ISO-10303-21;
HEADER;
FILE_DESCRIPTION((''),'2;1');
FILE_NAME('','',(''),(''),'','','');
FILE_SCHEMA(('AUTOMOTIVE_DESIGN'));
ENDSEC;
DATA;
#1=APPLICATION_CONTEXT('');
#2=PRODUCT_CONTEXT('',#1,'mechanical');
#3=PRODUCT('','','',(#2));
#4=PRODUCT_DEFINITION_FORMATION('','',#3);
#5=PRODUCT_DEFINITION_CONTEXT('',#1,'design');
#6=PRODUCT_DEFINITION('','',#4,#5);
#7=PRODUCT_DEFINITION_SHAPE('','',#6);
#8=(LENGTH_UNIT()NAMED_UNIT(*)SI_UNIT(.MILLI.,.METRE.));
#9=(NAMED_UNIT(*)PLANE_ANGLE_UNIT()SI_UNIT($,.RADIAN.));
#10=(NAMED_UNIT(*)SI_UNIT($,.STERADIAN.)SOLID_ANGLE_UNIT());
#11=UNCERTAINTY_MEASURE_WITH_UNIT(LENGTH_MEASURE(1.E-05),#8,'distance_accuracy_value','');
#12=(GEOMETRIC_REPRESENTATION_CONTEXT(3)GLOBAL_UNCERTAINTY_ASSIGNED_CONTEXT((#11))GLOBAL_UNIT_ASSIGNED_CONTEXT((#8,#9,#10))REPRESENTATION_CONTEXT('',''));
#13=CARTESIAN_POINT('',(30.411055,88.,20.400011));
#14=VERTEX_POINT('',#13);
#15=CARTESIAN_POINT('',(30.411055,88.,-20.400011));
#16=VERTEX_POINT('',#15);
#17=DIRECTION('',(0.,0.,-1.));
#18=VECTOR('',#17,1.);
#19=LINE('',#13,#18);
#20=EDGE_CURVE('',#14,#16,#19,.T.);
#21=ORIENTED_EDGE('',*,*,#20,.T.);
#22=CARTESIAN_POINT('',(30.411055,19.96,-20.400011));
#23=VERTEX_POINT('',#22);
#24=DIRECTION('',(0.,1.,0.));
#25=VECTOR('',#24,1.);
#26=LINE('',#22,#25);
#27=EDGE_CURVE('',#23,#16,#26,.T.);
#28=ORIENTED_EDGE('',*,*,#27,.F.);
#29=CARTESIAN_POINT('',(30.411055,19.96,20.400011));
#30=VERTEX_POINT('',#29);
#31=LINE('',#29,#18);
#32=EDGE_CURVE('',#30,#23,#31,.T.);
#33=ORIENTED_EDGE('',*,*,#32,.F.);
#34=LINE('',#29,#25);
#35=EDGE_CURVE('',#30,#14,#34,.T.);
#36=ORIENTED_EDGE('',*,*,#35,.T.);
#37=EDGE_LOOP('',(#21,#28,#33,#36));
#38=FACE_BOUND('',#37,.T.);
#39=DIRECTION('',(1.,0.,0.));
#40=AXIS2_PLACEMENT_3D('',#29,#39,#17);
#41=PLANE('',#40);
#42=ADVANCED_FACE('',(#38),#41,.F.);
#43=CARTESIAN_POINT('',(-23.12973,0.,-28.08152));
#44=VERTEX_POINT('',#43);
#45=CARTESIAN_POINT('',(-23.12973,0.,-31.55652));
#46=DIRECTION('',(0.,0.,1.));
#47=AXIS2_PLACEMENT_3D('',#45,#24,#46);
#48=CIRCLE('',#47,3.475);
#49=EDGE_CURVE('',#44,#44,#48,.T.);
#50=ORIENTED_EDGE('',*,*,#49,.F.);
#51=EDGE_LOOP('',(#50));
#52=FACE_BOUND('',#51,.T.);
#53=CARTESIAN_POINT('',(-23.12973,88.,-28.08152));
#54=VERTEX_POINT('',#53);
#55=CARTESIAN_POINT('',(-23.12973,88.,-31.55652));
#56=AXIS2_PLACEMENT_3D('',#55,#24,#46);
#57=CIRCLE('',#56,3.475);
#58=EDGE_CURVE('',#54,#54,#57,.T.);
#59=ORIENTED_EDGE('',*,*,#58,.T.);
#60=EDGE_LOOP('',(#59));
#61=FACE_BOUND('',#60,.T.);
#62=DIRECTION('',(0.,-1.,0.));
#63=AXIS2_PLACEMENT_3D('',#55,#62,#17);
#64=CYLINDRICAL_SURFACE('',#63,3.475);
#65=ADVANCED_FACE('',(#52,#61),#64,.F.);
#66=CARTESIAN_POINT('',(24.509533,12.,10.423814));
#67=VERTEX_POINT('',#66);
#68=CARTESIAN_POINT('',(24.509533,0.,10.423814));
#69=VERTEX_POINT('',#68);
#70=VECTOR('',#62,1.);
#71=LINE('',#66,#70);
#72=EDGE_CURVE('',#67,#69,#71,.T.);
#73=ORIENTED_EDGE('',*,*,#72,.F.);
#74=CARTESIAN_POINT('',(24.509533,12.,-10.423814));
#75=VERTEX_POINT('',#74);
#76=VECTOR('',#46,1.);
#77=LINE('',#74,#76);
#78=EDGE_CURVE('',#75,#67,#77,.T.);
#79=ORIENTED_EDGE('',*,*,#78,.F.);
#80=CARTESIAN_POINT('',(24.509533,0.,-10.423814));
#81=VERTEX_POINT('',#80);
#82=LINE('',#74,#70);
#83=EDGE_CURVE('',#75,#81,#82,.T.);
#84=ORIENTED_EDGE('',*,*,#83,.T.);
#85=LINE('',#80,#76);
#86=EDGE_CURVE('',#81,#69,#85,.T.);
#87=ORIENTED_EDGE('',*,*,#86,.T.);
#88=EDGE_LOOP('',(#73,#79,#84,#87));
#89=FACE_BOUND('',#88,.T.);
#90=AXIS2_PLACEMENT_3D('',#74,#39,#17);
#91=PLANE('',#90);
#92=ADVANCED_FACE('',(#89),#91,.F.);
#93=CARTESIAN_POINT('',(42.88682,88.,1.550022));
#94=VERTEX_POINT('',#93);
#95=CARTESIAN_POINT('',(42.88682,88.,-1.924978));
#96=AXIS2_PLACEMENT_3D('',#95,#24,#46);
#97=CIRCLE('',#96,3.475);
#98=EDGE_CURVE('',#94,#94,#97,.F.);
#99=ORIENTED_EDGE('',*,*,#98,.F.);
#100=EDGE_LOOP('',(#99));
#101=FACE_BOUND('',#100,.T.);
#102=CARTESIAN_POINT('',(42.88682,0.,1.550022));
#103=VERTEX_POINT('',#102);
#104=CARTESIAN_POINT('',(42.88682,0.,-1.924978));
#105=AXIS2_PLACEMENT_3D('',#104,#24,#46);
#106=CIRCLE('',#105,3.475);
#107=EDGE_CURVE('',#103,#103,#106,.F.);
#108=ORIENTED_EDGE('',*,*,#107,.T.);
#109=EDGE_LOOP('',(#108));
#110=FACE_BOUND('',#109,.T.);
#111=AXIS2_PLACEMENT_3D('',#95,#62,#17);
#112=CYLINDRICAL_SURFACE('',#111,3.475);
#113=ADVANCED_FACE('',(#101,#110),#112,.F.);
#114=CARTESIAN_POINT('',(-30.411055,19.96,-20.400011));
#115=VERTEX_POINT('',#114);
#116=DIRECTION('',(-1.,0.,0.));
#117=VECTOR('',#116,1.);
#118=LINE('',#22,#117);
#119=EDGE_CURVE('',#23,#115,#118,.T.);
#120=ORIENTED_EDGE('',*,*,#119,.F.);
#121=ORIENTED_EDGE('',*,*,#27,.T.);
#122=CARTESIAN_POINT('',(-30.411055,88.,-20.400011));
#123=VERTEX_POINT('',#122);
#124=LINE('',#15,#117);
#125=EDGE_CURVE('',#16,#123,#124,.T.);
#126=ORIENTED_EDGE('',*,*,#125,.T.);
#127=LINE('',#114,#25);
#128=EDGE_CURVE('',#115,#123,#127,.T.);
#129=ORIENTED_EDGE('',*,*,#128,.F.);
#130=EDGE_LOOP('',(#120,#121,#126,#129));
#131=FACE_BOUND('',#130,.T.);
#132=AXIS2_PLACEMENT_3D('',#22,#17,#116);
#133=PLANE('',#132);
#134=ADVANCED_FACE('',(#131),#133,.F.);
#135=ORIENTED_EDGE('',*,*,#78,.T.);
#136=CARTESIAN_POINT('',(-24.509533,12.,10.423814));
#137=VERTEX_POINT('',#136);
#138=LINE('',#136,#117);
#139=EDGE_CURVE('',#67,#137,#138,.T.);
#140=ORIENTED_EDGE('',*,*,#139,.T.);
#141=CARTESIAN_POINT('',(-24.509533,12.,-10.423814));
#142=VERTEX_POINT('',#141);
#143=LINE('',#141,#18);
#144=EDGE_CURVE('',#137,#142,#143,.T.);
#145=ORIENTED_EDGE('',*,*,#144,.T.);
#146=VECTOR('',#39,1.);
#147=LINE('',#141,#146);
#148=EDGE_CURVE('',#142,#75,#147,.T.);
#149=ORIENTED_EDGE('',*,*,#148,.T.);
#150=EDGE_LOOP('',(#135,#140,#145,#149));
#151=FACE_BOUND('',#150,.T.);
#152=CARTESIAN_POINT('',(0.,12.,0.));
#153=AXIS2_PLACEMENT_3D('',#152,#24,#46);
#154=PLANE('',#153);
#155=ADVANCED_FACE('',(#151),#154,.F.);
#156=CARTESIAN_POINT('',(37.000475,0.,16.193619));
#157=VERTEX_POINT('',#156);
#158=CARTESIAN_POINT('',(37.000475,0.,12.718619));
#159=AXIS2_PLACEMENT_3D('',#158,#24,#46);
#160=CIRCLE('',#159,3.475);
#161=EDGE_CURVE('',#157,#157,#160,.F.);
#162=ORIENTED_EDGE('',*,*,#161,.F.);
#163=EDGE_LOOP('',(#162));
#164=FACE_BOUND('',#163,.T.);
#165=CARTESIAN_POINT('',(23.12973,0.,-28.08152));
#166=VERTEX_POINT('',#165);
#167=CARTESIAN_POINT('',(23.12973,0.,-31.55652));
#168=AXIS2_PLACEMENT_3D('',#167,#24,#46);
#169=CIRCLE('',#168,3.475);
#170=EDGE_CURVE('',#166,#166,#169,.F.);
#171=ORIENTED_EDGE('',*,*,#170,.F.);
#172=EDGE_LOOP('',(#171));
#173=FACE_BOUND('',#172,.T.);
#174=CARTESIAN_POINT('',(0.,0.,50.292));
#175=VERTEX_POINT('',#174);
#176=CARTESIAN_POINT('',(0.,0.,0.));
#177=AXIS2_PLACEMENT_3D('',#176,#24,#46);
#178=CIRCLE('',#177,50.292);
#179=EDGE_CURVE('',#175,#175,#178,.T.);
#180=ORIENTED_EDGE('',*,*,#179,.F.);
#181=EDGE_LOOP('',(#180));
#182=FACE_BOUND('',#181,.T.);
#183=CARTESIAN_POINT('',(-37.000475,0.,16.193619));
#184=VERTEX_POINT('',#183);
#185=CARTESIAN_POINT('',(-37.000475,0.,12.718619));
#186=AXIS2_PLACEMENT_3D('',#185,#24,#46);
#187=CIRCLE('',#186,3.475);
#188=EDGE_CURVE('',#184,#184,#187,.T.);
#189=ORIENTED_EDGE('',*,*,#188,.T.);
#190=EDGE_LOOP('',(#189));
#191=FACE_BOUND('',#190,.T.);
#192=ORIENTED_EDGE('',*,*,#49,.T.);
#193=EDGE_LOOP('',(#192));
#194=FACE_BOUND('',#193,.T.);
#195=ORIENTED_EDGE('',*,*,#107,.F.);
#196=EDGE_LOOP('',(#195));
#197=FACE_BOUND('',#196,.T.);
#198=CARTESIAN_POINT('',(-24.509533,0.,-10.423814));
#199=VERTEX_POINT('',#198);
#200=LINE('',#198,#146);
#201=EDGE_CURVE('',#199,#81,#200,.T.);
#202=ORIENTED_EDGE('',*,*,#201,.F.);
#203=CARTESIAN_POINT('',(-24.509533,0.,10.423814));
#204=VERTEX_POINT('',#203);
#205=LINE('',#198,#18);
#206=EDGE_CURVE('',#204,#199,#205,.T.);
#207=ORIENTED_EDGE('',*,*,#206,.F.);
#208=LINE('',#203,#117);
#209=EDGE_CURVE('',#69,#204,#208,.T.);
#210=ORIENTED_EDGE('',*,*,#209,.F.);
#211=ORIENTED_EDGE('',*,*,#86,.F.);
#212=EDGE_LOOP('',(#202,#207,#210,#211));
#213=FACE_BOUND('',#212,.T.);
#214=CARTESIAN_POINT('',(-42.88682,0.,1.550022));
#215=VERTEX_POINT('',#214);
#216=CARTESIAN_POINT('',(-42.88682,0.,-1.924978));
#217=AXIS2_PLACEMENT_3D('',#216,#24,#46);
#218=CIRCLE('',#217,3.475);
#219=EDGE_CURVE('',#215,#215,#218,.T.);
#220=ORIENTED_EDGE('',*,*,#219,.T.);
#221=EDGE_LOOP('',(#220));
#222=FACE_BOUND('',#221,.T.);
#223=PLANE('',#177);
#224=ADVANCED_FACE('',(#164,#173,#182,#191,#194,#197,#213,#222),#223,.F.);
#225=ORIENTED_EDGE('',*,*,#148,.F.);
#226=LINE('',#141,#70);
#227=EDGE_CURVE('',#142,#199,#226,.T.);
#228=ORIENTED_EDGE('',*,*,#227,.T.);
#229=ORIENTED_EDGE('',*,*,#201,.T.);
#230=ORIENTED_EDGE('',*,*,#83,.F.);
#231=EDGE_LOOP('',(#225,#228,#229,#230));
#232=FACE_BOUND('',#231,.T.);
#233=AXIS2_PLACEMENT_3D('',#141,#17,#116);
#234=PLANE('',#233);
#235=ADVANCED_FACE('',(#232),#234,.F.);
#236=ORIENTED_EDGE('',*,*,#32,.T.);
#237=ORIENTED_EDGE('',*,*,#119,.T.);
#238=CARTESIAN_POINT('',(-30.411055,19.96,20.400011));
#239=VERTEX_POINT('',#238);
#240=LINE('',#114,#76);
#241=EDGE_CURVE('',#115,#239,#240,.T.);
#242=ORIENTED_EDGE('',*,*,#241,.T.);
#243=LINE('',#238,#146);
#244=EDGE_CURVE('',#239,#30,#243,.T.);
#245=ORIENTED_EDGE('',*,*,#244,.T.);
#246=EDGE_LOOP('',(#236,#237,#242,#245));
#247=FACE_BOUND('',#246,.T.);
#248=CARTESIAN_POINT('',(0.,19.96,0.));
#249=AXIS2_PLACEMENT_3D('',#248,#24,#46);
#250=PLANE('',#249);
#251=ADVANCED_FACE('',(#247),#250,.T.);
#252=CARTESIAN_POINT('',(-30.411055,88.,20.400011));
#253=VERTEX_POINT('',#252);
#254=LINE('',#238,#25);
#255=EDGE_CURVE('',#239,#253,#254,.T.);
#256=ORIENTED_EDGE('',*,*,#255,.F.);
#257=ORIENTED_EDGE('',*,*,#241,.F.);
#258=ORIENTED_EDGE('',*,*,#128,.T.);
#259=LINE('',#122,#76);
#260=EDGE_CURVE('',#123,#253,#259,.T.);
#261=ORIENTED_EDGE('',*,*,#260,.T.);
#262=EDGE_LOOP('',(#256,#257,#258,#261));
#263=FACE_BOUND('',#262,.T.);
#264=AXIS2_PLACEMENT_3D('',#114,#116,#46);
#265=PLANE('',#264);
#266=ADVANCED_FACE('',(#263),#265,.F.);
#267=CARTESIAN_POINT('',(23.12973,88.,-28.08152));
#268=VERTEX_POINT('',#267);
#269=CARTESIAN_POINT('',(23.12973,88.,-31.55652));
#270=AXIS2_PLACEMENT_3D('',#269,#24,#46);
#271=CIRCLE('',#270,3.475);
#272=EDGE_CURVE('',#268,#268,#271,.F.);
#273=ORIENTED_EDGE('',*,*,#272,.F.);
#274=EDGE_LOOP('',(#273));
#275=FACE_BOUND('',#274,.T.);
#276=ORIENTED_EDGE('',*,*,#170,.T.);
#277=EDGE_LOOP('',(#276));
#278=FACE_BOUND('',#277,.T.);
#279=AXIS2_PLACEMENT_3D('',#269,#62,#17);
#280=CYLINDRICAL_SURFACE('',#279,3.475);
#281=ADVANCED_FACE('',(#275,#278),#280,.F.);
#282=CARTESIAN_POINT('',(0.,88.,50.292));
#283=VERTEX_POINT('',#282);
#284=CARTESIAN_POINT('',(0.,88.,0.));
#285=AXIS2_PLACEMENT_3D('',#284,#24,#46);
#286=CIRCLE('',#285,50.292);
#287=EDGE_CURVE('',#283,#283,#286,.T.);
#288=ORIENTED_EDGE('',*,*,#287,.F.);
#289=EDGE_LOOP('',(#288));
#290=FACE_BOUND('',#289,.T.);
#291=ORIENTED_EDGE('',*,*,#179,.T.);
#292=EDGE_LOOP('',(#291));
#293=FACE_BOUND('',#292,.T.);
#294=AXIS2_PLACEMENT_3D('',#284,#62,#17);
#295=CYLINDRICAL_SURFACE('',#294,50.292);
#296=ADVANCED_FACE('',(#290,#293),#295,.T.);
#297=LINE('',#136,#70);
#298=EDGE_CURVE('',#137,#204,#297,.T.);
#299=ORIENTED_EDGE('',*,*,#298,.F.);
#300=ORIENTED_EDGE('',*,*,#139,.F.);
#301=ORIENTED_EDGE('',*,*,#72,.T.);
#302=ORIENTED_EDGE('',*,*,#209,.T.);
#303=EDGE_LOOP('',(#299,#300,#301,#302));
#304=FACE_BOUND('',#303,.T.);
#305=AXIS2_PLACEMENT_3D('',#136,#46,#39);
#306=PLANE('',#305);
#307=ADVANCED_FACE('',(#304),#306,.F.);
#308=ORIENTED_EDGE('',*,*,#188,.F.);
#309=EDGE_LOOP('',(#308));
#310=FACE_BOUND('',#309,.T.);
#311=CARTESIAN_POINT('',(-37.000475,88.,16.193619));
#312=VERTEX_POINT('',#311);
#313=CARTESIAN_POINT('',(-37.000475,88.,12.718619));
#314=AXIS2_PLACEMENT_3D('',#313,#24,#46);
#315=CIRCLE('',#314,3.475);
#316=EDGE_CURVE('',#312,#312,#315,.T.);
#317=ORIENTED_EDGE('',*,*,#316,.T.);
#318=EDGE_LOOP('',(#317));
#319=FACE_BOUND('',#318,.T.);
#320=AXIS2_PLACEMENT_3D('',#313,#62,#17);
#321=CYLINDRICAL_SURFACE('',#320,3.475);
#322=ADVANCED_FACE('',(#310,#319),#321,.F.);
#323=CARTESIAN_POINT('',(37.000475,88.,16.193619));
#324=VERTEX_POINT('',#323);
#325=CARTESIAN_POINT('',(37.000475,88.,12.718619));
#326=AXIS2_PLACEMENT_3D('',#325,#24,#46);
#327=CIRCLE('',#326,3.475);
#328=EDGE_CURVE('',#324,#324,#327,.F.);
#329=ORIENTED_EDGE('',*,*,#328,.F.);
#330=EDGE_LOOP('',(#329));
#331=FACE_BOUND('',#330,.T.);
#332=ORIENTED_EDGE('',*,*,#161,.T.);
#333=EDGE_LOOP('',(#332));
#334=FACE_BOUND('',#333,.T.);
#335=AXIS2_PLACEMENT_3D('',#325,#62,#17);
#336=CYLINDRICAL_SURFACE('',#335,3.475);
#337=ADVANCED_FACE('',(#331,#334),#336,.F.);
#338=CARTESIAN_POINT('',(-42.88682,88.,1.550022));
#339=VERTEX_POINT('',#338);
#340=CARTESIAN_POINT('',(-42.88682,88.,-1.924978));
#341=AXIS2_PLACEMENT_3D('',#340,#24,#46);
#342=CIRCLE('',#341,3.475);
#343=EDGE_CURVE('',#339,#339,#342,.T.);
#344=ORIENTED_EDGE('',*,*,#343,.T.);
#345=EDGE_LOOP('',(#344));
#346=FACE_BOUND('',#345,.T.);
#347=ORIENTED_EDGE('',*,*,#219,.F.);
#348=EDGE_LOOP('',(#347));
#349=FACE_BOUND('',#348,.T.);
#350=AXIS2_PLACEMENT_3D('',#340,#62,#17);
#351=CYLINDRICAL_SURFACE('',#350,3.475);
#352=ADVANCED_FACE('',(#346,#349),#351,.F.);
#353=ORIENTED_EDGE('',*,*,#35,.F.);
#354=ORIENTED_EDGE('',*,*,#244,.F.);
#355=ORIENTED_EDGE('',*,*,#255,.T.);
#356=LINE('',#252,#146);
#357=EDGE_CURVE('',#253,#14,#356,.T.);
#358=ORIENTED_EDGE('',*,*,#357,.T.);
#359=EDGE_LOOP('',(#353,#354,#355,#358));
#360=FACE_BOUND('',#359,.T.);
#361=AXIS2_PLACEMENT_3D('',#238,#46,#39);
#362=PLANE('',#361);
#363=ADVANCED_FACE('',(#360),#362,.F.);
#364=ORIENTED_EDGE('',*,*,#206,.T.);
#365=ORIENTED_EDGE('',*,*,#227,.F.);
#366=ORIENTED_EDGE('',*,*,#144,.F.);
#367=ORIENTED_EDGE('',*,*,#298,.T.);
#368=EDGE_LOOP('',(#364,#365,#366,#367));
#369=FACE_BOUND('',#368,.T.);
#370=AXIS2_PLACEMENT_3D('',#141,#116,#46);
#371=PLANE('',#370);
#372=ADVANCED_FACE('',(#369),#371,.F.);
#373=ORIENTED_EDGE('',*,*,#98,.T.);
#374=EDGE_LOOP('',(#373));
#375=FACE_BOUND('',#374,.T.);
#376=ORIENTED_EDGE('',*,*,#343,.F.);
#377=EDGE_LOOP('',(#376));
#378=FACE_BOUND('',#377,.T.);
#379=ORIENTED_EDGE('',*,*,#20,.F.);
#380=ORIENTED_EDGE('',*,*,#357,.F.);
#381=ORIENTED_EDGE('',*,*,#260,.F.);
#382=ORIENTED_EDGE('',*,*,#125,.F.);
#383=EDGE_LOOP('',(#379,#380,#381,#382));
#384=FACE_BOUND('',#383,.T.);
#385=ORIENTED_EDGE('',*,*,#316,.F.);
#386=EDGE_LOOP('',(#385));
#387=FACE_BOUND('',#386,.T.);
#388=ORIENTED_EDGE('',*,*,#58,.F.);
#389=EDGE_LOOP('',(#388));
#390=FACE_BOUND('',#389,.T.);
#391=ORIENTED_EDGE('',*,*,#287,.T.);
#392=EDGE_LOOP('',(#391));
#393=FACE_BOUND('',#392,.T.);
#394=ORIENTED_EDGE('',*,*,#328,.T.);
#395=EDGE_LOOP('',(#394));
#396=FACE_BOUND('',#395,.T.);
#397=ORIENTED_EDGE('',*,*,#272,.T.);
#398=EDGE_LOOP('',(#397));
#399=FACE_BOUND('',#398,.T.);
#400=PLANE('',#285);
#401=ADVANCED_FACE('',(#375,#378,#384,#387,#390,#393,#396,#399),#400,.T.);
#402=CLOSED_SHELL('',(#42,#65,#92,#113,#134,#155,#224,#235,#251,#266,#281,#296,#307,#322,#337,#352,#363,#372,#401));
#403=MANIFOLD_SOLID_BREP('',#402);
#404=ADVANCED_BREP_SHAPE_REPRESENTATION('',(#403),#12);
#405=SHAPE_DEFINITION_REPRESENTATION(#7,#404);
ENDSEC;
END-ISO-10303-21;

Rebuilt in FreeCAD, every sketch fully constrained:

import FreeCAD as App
import Part
import Sketcher

V = App.Vector
Q = App.Units.Quantity

doc = App.newDocument("Part")
body = doc.addObject("PartDesign::Body", "Body")

# Sketch on XZ plane
sketch1 = body.newObject("Sketcher::SketchObject", "Sketch")
sketch1.AttachmentSupport = (doc.getObject("XZ_Plane"), [""])
sketch1.MapMode = "FlatFace"
sketch1.addGeometry(Part.Circle(V(0, 0, 0), V(0, 0, 1), 50.3), False)
sketch1.addGeometry(Part.Circle(V(-37, 12.7, 0), V(0, 0, 1), 3.5), False)
sketch1.addGeometry(Part.Circle(V(-42.9, -1.9, 0), V(0, 0, 1), 3.5), False)
sketch1.addGeometry(Part.Circle(V(37, 12.7, 0), V(0, 0, 1), 3.5), False)
sketch1.addGeometry(Part.Circle(V(42.9, -1.9, 0), V(0, 0, 1), 3.5), False)
sketch1.addGeometry(Part.Circle(V(-23.1, -31.6, 0), V(0, 0, 1), 3.5), False)
sketch1.addGeometry(Part.Circle(V(23.1, -31.6, 0), V(0, 0, 1), 3.5), False)
sketch1.addConstraint(Sketcher.Constraint("Coincident", 0, 3, -1, 1))
sketch1.addConstraint(Sketcher.Constraint("Equal", 1, 2))
sketch1.addConstraint(Sketcher.Constraint("Equal", 2, 3))
sketch1.addConstraint(Sketcher.Constraint("Equal", 3, 4))
sketch1.addConstraint(Sketcher.Constraint("Equal", 4, 5))
sketch1.addConstraint(Sketcher.Constraint("Equal", 5, 6))
sketch1.addConstraint(Sketcher.Constraint("Symmetric", 1, 3, 3, 3, -2))
sketch1.addConstraint(Sketcher.Constraint("Symmetric", 2, 3, 4, 3, -2))
sketch1.addConstraint(Sketcher.Constraint("Symmetric", 5, 3, 6, 3, -2))
sketch1.addConstraint(Sketcher.Constraint("Diameter", 1, Q("6.95 mm")))
sketch1.addConstraint(Sketcher.Constraint("Diameter", 0, Q("100.584 mm")))
sketch1.addConstraint(Sketcher.Constraint("DistanceY", -1, 1, 1, 3, Q("12.718619 mm")))
sketch1.addConstraint(Sketcher.Constraint("DistanceX", 2, 3, -1, 1, Q("42.88682 mm")))
sketch1.addConstraint(Sketcher.Constraint("DistanceX", 5, 3, -1, 1, Q("23.12973 mm")))
sketch1.addConstraint(Sketcher.Constraint("DistanceY", 5, 3, -1, 1, Q("31.55652 mm")))
sketch1.addConstraint(Sketcher.Constraint("DistanceX", 1, 3, 3, 3, Q("74.00095 mm")))
sketch1.addConstraint(Sketcher.Constraint("DistanceY", 2, 3, -1, 1, Q("1.924978 mm")))
pad1 = body.newObject("PartDesign::Pad", "Pad")
pad1.Profile = sketch1
pad1.Length = 88
pad1.Reversed = True

# Sketch on XZ plane
sketch2 = body.newObject("Sketcher::SketchObject", "Sketch001")
sketch2.AttachmentSupport = (doc.getObject("XZ_Plane"), [""])
sketch2.MapMode = "FlatFace"
sketch2.AttachmentOffset = App.Placement(V(0, 0, -88), App.Rotation())
sketch2.addGeometry(Part.LineSegment(V(-30, -20, 0), V(-30, 20, 0)), False)
sketch2.addGeometry(Part.LineSegment(V(-30, 20, 0), V(30, 20, 0)), False)
sketch2.addGeometry(Part.LineSegment(V(30, 20, 0), V(30, -20, 0)), False)
sketch2.addGeometry(Part.LineSegment(V(30, -20, 0), V(-30, -20, 0)), False)
sketch2.addConstraint(Sketcher.Constraint("Coincident", 0, 2, 1, 1))
sketch2.addConstraint(Sketcher.Constraint("Coincident", 1, 2, 2, 1))
sketch2.addConstraint(Sketcher.Constraint("Coincident", 2, 2, 3, 1))
sketch2.addConstraint(Sketcher.Constraint("Coincident", 3, 2, 0, 1))
sketch2.addConstraint(Sketcher.Constraint("Vertical", 0))
sketch2.addConstraint(Sketcher.Constraint("Horizontal", 1))
sketch2.addConstraint(Sketcher.Constraint("Vertical", 2))
sketch2.addConstraint(Sketcher.Constraint("Horizontal", 3))
sketch2.addConstraint(Sketcher.Constraint("Symmetric", 0, 2, 2, 2, -1, 1))
sketch2.addConstraint(Sketcher.Constraint("DistanceX", 1, 1, 1, 2, Q("60.822109 mm")))
sketch2.addConstraint(Sketcher.Constraint("DistanceY", 0, 1, 0, 2, Q("40.800022 mm")))
pocket1 = body.newObject("PartDesign::Pocket", "Pocket")
pocket1.Profile = sketch2
pocket1.Length = 68.04
pocket1.Reversed = True

# Sketch on XZ plane
sketch3 = body.newObject("Sketcher::SketchObject", "Sketch002")
sketch3.AttachmentSupport = (doc.getObject("XZ_Plane"), [""])
sketch3.MapMode = "FlatFace"
sketch3.addGeometry(Part.LineSegment(V(25, -10, 0), V(25, 10, 0)), False)
sketch3.addGeometry(Part.LineSegment(V(25, 10, 0), V(-25, 10, 0)), False)
sketch3.addGeometry(Part.LineSegment(V(-25, 10, 0), V(-25, -10, 0)), False)
sketch3.addGeometry(Part.LineSegment(V(-25, -10, 0), V(25, -10, 0)), False)
sketch3.addConstraint(Sketcher.Constraint("Coincident", 0, 2, 1, 1))
sketch3.addConstraint(Sketcher.Constraint("Coincident", 1, 2, 2, 1))
sketch3.addConstraint(Sketcher.Constraint("Coincident", 2, 2, 3, 1))
sketch3.addConstraint(Sketcher.Constraint("Coincident", 3, 2, 0, 1))
sketch3.addConstraint(Sketcher.Constraint("Vertical", 0))
sketch3.addConstraint(Sketcher.Constraint("Horizontal", 1))
sketch3.addConstraint(Sketcher.Constraint("Vertical", 2))
sketch3.addConstraint(Sketcher.Constraint("Horizontal", 3))
sketch3.addConstraint(Sketcher.Constraint("Symmetric", 0, 2, 2, 2, -1, 1))
sketch3.addConstraint(Sketcher.Constraint("DistanceY", 0, 1, 0, 2, Q("20.847628 mm")))
sketch3.addConstraint(Sketcher.Constraint("DistanceX", 1, 2, 1, 1, Q("49.019067 mm")))
pocket2 = body.newObject("PartDesign::Pocket", "Pocket001")
pocket2.Profile = sketch3
pocket2.Length = 12

doc.recompute()
